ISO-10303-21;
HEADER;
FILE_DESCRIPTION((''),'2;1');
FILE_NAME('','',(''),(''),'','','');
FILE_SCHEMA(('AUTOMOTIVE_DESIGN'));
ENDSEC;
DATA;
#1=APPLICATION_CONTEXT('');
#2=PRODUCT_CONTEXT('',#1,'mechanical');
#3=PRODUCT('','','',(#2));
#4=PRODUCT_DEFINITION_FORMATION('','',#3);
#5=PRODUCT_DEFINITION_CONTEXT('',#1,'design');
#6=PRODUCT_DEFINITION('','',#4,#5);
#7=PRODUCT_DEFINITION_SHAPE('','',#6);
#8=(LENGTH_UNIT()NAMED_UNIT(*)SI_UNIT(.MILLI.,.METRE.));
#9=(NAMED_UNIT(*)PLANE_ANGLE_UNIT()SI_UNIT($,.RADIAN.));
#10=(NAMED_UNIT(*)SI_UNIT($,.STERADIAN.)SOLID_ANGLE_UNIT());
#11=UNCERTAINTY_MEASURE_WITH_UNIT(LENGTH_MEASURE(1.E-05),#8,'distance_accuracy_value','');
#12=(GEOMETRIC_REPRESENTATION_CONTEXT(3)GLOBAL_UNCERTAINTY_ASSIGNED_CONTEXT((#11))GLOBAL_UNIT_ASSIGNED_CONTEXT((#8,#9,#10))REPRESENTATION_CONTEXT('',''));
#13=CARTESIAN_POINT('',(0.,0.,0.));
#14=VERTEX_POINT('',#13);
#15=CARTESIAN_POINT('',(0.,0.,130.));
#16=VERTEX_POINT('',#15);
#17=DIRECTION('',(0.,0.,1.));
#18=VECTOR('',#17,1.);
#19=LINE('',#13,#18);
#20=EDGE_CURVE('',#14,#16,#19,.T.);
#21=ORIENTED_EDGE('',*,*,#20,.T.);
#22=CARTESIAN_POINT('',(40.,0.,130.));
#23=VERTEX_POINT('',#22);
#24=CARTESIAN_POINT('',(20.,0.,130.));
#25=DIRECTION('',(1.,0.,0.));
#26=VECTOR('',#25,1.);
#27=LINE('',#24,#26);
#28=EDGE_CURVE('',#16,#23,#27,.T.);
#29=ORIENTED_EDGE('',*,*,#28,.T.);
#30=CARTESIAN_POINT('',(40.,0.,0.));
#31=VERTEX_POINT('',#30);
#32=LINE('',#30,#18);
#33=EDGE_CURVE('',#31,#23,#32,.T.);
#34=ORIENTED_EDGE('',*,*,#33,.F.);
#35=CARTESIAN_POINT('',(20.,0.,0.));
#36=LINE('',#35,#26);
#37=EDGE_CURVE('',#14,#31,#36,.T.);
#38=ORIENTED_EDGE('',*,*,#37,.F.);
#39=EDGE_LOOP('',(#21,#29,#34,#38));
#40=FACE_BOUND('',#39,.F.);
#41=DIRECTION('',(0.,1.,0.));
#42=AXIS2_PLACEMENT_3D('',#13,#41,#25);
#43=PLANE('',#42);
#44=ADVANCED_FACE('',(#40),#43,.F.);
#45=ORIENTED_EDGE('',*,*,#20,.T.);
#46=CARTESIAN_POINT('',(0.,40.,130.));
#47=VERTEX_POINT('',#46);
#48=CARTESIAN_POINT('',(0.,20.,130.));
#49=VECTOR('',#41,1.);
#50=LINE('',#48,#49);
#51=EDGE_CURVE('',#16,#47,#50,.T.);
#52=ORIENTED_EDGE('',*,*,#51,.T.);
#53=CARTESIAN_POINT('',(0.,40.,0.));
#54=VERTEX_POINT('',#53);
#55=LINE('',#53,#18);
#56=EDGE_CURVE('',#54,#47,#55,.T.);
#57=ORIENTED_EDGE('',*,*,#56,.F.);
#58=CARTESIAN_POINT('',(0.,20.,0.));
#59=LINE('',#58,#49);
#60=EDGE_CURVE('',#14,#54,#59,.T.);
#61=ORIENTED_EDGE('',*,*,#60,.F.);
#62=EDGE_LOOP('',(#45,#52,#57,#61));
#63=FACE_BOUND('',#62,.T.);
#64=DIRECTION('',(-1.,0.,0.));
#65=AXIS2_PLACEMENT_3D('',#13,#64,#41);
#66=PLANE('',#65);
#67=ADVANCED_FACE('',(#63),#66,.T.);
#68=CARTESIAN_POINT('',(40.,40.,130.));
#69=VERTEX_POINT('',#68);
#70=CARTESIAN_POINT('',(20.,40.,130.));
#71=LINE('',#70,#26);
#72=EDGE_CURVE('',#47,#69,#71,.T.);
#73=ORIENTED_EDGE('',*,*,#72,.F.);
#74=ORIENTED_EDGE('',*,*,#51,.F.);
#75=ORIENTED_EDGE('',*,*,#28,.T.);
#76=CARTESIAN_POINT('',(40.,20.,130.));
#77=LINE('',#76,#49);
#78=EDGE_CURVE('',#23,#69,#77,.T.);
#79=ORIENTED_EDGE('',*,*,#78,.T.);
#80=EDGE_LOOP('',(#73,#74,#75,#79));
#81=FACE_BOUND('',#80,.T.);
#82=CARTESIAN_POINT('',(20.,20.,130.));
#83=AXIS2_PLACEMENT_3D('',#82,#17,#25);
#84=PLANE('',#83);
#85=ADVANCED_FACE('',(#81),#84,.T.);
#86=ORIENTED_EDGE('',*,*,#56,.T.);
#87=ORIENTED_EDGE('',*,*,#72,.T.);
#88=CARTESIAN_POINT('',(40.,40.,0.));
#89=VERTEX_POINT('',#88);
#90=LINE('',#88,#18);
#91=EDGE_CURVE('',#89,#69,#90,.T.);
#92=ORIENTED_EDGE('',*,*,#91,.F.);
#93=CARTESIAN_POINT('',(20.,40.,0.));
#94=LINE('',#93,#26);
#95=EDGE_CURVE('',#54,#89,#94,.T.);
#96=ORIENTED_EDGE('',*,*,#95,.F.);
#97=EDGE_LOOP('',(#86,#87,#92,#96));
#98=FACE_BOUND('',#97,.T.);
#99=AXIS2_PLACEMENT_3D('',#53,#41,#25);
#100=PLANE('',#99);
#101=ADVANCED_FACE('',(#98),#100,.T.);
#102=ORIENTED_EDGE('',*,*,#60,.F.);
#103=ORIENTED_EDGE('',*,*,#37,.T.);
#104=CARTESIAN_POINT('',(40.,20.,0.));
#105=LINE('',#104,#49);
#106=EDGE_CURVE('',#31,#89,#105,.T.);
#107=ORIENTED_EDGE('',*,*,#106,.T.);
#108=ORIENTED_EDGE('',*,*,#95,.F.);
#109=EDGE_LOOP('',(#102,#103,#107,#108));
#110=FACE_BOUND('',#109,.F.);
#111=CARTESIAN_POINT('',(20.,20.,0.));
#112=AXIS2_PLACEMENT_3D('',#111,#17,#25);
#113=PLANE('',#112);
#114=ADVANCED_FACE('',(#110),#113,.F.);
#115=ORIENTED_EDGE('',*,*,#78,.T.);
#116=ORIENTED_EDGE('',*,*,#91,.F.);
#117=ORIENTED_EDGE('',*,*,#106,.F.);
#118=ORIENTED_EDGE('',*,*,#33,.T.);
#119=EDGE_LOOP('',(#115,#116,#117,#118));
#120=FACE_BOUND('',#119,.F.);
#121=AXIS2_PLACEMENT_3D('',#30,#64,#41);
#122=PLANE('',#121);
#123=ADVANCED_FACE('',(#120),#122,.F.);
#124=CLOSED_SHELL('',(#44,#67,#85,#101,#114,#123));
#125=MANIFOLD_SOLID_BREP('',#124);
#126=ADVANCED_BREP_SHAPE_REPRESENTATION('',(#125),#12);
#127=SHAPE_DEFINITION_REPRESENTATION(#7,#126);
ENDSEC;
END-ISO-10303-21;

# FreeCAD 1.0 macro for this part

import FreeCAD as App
import Part
import Sketcher
from FreeCAD import Vector

doc = App.newDocument("Part")
body = doc.addObject("PartDesign::Body", "Body")

sketch1 = body.newObject("Sketcher::SketchObject", "Sketch")
sketch1.AttachmentSupport = (doc.getObject("XY_Plane"), [""])
sketch1.MapMode = "FlatFace"
sketch1.addGeometry(Part.LineSegment(Vector(0, 40, 0), Vector(0, 0, 0)), False)
sketch1.addGeometry(Part.LineSegment(Vector(0, 0, 0), Vector(40, 0, 0)), False)
sketch1.addGeometry(Part.LineSegment(Vector(40, 0, 0), Vector(40, 40, 0)), False)
sketch1.addGeometry(Part.LineSegment(Vector(40, 40, 0), Vector(0, 40, 0)), False)
sketch1.addConstraint(Sketcher.Constraint("Coincident", 0, 2, 1, 1))
sketch1.addConstraint(Sketcher.Constraint("Coincident", 1, 2, 2, 1))
sketch1.addConstraint(Sketcher.Constraint("Coincident", 2, 2, 3, 1))
sketch1.addConstraint(Sketcher.Constraint("Coincident", 3, 2, 0, 1))
sketch1.addConstraint(Sketcher.Constraint("Vertical", 0))
sketch1.addConstraint(Sketcher.Constraint("Horizontal", 1))
sketch1.addConstraint(Sketcher.Constraint("Vertical", 2))
sketch1.addConstraint(Sketcher.Constraint("Horizontal", 3))
sketch1.addConstraint(Sketcher.Constraint("Coincident", 0, 2, -1, 1))
sketch1.addConstraint(Sketcher.Constraint("Equal", 3, 0))
sketch1.addConstraint(Sketcher.Constraint("DistanceX", 1, 1, 1, 2, 40.0))
pad1 = body.newObject("PartDesign::Pad", "Pad")
pad1.Profile = sketch1
pad1.Length = 130

doc.recompute()
